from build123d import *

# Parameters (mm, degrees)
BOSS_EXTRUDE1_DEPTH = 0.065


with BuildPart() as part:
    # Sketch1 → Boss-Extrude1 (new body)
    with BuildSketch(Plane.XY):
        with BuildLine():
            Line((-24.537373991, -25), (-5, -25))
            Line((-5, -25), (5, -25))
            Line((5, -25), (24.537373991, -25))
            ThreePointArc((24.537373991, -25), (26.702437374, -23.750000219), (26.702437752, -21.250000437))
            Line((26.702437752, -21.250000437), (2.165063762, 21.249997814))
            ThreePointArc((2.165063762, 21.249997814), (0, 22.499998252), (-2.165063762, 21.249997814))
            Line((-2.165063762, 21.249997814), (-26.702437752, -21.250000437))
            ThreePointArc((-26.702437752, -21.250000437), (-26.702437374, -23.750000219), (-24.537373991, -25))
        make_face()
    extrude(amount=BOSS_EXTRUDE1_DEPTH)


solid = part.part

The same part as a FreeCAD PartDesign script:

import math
import FreeCAD as App
import Part
import Sketcher
Q = App.Units.Quantity

doc = App.newDocument("Part")
body = doc.addObject("PartDesign::Body", "Body")

# Sketch on XY plane
sketch1 = body.newObject("Sketcher::SketchObject", "Sketch")
sketch1.AttachmentSupport = (doc.getObject("XY_Plane"), [""])
sketch1.MapMode = "FlatFace"
sketch1.addGeometry(Part.LineSegment(App.Vector(-24.5, -25, 0), App.Vector(24.5, -25, 0)), False)
sketch1.addGeometry(Part.ArcOfCircle(Part.Circle(App.Vector(24.5, -22.5, 0), App.Vector(0, 0, 1), 2.5), math.radians(-90), math.radians(30)), False)
sketch1.addGeometry(Part.LineSegment(App.Vector(26.7, -21.3, 0), App.Vector(2.2, 21.2, 0)), False)
sketch1.addGeometry(Part.ArcOfCircle(Part.Circle(App.Vector(0, 20, 0), App.Vector(0, 0, 1), 2.5), math.radians(30), math.radians(150)), False)
sketch1.addGeometry(Part.LineSegment(App.Vector(-2.2, 21.2, 0), App.Vector(-26.7, -21.3, 0)), False)
sketch1.addGeometry(Part.ArcOfCircle(Part.Circle(App.Vector(-24.5, -22.5, 0), App.Vector(0, 0, 1), 2.5), math.radians(150), math.radians(270)), False)
sketch1.addConstraint(Sketcher.Constraint("Tangent", 0, 2, 1, 1))
sketch1.addConstraint(Sketcher.Constraint("Tangent", 1, 2, 2, 1))
sketch1.addConstraint(Sketcher.Constraint("Tangent", 2, 2, 3, 1))
sketch1.addConstraint(Sketcher.Constraint("Tangent", 3, 2, 4, 1))
sketch1.addConstraint(Sketcher.Constraint("Tangent", 4, 2, 5, 1))
sketch1.addConstraint(Sketcher.Constraint("Tangent", 5, 2, 0, 1))
sketch1.addConstraint(Sketcher.Constraint("Horizontal", 0))
sketch1.addConstraint(Sketcher.Constraint("Equal", 1, 3))
sketch1.addConstraint(Sketcher.Constraint("Equal", 3, 5))
sketch1.addConstraint(Sketcher.Constraint("Symmetric", 2, 2, 3, 2, -2))
sketch1.addConstraint(Sketcher.Constraint("Radius", 1, Q("2.5 mm")))
sketch1.addConstraint(Sketcher.Constraint("Angle", 2, Q("119.999988 deg")))
sketch1.addConstraint(Sketcher.Constraint("DistanceY", -1, 1, 3, 3, Q("19.999998 mm")))
sketch1.addConstraint(Sketcher.Constraint("DistanceY", 0, 2, -1, 1, Q("25 mm")))
pad1 = body.newObject("PartDesign::Pad", "Pad")
pad1.Profile = sketch1
pad1.Length = 0.065

doc.recompute()
